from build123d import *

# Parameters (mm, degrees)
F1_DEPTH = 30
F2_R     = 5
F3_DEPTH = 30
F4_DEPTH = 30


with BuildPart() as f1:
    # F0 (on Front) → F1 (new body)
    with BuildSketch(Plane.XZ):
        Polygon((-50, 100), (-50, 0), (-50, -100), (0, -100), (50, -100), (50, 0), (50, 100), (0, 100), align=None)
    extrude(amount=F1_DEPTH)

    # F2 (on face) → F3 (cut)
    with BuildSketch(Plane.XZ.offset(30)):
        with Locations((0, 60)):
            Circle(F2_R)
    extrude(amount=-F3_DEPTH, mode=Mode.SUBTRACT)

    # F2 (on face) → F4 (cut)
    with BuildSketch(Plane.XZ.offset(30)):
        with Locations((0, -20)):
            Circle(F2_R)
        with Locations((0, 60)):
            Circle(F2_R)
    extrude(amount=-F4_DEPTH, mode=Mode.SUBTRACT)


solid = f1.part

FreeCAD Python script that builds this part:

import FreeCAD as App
import Part
import Sketcher
Q = App.Units.Quantity

doc = App.newDocument("Part")
params = doc.addObject("Spreadsheet::Sheet", "Params")
for row, (alias, value) in enumerate([
    ("sketch1_width", "100 mm"),
    ("sketch1_height", "200 mm"),
    ("pad1_length", "30 mm"),
    ("sketch2_diameter", "10 mm"),
    ("pocket1_length", "30 mm"),
    ("sketch3_diameter", "10 mm"),
    ("pocket2_length", "30 mm"),
], start=1):
    params.set(f"A{row}", alias)
    params.set(f"B{row}", "=" + value)
    params.setAlias(f"B{row}", alias)

body = doc.addObject("PartDesign::Body", "Body")

sketch1 = doc.addObject("Sketcher::SketchObject", "Sketch")
body.addObject(sketch1)
sketch1.AttachmentSupport = (doc.XZ_Plane, [""])
sketch1.MapMode = "FlatFace"
sketch1.addGeometry(Part.LineSegment(App.Vector(-50, 100, 0), App.Vector(-50, -100, 0)), False)
sketch1.addGeometry(Part.LineSegment(App.Vector(-50, -100, 0), App.Vector(50, -100, 0)), False)
sketch1.addGeometry(Part.LineSegment(App.Vector(50, -100, 0), App.Vector(50, 100, 0)), False)
sketch1.addGeometry(Part.LineSegment(App.Vector(50, 100, 0), App.Vector(-50, 100, 0)), False)
sketch1.addConstraint(Sketcher.Constraint("Coincident", 0, 2, 1, 1))
sketch1.addConstraint(Sketcher.Constraint("Coincident", 1, 2, 2, 1))
sketch1.addConstraint(Sketcher.Constraint("Coincident", 2, 2, 3, 1))
sketch1.addConstraint(Sketcher.Constraint("Coincident", 3, 2, 0, 1))
sketch1.addConstraint(Sketcher.Constraint("Vertical", 0))
sketch1.addConstraint(Sketcher.Constraint("Horizontal", 1))
sketch1.addConstraint(Sketcher.Constraint("Vertical", 2))
sketch1.addConstraint(Sketcher.Constraint("Horizontal", 3))
sketch1.addConstraint(Sketcher.Constraint("Symmetric", 0, 2, 2, 2, -1, 1))
sketch1.addConstraint(Sketcher.Constraint("DistanceX", 1, 1, 1, 2, Q("100 mm")))
sketch1.addConstraint(Sketcher.Constraint("DistanceY", 0, 2, 0, 1, Q("200 mm")))
sketch1.setExpression("Constraints[9]", "Params.sketch1_width")
sketch1.setExpression("Constraints[10]", "Params.sketch1_height")
pad1 = doc.addObject("PartDesign::Pad", "Pad")
body.addObject(pad1)
pad1.Profile = sketch1
pad1.setExpression("Length", "Params.pad1_length")

sketch2 = doc.addObject("Sketcher::SketchObject", "Sketch001")
body.addObject(sketch2)
sketch2.AttachmentSupport = (doc.XZ_Plane, [""])
sketch2.MapMode = "FlatFace"
sketch2.AttachmentOffset = App.Placement(App.Vector(0, 0, 30), App.Rotation())
sketch2.addGeometry(Part.Circle(App.Vector(0, 60, 0), App.Vector(0, 0, 1), 5), False)
sketch2.addConstraint(Sketcher.Constraint("PointOnObject", 0, 3, -2))
sketch2.addConstraint(Sketcher.Constraint("Diameter", 0, Q("10 mm")))
sketch2.addConstraint(Sketcher.Constraint("DistanceY", -1, 1, 0, 3, Q("60 mm")))
sketch2.setExpression("Constraints[1]", "Params.sketch2_diameter")
pocket1 = doc.addObject("PartDesign::Pocket", "Pocket")
body.addObject(pocket1)
pocket1.Profile = sketch2
pocket1.setExpression("Length", "Params.pocket1_length")

sketch3 = doc.addObject("Sketcher::SketchObject", "Sketch002")
body.addObject(sketch3)
sketch3.AttachmentSupport = (doc.XZ_Plane, [""])
sketch3.MapMode = "FlatFace"
sketch3.AttachmentOffset = App.Placement(App.Vector(0, 0, 30), App.Rotation())
sketch3.addGeometry(Part.Circle(App.Vector(0, -20, 0), App.Vector(0, 0, 1), 5), False)
sketch3.addGeometry(Part.Circle(App.Vector(0, 60, 0), App.Vector(0, 0, 1), 5), False)
sketch3.addConstraint(Sketcher.Constraint("Equal", 0, 1))
sketch3.addConstraint(Sketcher.Constraint("PointOnObject", 0, 3, -2))
sketch3.addConstraint(Sketcher.Constraint("PointOnObject", 1, 3, -2))
sketch3.addConstraint(Sketcher.Constraint("Diameter", 0, Q("10 mm")))
sketch3.addConstraint(Sketcher.Constraint("DistanceY", 0, 3, -1, 1, Q("20 mm")))
sketch3.addConstraint(Sketcher.Constraint("DistanceY", -1, 1, 1, 3, Q("60 mm")))
sketch3.setExpression("Constraints[3]", "Params.sketch3_diameter")
pocket2 = doc.addObject("PartDesign::Pocket", "Pocket001")
body.addObject(pocket2)
pocket2.Profile = sketch3
pocket2.setExpression("Length", "Params.pocket2_length")

doc.recompute()
